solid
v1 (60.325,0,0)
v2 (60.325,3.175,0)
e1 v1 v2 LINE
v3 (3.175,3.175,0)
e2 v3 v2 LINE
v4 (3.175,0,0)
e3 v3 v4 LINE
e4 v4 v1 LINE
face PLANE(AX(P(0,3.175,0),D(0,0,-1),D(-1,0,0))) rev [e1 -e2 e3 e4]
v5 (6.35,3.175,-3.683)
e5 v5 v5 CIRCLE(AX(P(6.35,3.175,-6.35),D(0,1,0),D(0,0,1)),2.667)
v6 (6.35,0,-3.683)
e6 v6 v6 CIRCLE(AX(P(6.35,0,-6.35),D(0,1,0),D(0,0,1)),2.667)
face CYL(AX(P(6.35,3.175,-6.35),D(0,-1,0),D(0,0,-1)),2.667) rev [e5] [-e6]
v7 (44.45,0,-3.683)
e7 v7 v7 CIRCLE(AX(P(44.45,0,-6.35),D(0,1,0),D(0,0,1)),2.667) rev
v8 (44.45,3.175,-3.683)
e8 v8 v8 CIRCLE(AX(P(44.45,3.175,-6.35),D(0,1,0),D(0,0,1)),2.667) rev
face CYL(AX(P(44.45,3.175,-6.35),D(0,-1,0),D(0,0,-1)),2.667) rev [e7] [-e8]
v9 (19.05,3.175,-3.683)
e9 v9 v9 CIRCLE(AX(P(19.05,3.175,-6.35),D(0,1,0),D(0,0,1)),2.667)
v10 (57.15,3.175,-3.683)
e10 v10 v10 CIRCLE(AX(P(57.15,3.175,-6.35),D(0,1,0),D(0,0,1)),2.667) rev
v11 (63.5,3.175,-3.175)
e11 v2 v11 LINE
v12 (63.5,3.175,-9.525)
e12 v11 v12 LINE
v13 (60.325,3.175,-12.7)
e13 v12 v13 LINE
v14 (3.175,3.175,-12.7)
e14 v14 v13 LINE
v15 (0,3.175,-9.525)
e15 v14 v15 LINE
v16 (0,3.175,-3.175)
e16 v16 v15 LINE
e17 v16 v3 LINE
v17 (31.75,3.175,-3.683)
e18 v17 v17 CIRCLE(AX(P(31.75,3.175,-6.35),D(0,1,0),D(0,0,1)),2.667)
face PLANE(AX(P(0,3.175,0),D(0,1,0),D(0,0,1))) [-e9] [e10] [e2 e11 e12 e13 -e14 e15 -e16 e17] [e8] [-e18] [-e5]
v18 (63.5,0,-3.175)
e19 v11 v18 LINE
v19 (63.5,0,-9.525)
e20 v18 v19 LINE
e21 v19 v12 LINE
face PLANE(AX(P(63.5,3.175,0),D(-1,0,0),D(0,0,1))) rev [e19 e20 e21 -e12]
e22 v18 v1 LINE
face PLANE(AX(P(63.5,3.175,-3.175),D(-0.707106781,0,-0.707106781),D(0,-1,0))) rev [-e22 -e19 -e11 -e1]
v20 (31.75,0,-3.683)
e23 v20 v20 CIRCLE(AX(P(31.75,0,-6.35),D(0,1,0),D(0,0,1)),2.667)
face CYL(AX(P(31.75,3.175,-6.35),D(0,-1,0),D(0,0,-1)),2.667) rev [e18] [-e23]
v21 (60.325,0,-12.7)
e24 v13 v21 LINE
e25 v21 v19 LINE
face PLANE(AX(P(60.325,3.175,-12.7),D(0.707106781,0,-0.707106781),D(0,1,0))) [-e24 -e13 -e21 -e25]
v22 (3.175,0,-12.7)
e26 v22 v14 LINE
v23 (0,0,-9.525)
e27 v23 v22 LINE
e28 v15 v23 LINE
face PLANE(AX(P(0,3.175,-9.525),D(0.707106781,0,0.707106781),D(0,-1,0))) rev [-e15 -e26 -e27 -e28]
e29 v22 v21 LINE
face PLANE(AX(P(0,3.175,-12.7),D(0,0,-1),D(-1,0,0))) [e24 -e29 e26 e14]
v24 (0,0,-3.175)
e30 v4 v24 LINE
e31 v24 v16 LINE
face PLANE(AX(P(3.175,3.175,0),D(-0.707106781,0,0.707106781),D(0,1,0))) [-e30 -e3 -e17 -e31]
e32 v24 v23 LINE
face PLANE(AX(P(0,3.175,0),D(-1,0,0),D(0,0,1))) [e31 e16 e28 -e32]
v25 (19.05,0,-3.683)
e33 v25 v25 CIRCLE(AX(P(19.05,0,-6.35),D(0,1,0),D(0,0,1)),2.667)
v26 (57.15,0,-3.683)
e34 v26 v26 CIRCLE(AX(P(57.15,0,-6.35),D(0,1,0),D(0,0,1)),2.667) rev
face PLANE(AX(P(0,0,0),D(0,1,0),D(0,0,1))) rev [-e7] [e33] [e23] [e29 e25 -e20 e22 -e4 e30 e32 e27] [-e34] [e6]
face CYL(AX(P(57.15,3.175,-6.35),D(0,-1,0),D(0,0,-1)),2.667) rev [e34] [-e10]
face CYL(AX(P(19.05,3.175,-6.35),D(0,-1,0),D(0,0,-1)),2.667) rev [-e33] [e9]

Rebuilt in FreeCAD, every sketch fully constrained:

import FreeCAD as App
import Part
import Sketcher
Q = App.Units.Quantity


def edges_at(feature, points):
    """Names of the edges that pass closest to the given points."""
    edges = feature.Shape.Edges
    near = lambda p: min(range(len(edges)), key=lambda i: edges[i].distToShape(Part.Vertex(*p))[0])
    return sorted({f"Edge{near(p) + 1}" for p in points})

doc = App.newDocument("Part")
params = doc.addObject("Spreadsheet::Sheet", "Params")
for row, (alias, value) in enumerate([
    ("sketch1_diameter", "0.21 in"),
    ("sketch1_width", "2.5 in"),
    ("sketch1_height", "0.5 in"),
    ("pad1_length", "0.125 in"),
    ("chamfer_size", "0.125 in"),
], start=1):
    params.set(f"A{row}", alias)
    params.set(f"B{row}", "=" + value)
    params.setAlias(f"B{row}", alias)

body = doc.addObject("PartDesign::Body", "Body")

sketch1 = body.newObject("Sketcher::SketchObject", "Sketch")
sketch1.AttachmentSupport = (doc.getObject("XZ_Plane"), [""])
sketch1.MapMode = "FlatFace"
sketch1.addGeometry([
    Part.LineSegment(App.Vector(0, -12.7, 0), App.Vector(0, 0, 0)),
    Part.LineSegment(App.Vector(0, 0, 0), App.Vector(63.5, 0, 0)),
    Part.LineSegment(App.Vector(63.5, 0, 0), App.Vector(63.5, -12.7, 0)),
    Part.LineSegment(App.Vector(63.5, -12.7, 0), App.Vector(0, -12.7, 0)),
    Part.Circle(App.Vector(6.3, -6.3, 0), App.Vector(0, 0, 1), 2.7),
    Part.Circle(App.Vector(19.1, -6.3, 0), App.Vector(0, 0, 1), 2.7),
    Part.Circle(App.Vector(31.8, -6.3, 0), App.Vector(0, 0, 1), 2.7),
    Part.Circle(App.Vector(44.5, -6.3, 0), App.Vector(0, 0, 1), 2.7),
    Part.Circle(App.Vector(57.1, -6.3, 0), App.Vector(0, 0, 1), 2.7),
], False)
sketch1.addConstraint([
    Sketcher.Constraint("Coincident", 0, 2, 1, 1),
    Sketcher.Constraint("Coincident", 1, 2, 2, 1),
    Sketcher.Constraint("Coincident", 2, 2, 3, 1),
    Sketcher.Constraint("Coincident", 3, 2, 0, 1),
    Sketcher.Constraint("Vertical", 0),
    Sketcher.Constraint("Horizontal", 1),
    Sketcher.Constraint("Vertical", 2),
    Sketcher.Constraint("Horizontal", 3),
    Sketcher.Constraint("Coincident", 0, 2, -1, 1),
    Sketcher.Constraint("Equal", 4, 5),
    Sketcher.Constraint("Equal", 5, 6),
    Sketcher.Constraint("Equal", 6, 7),
    Sketcher.Constraint("Equal", 7, 8),
    Sketcher.Constraint("Horizontal", 4, 3, 5, 3),
    Sketcher.Constraint("Horizontal", 5, 3, 6, 3),
    Sketcher.Constraint("Horizontal", 6, 3, 7, 3),
    Sketcher.Constraint("Horizontal", 7, 3, 8, 3),
    Sketcher.Constraint("Diameter", 4, Q("0.21 in")),
    Sketcher.Constraint("DistanceX", 1, 1, 1, 2, Q("2.5 in")),
    Sketcher.Constraint("DistanceY", 0, 1, 0, 2, Q("0.5 in")),
    Sketcher.Constraint("DistanceX", 4, 3, 6, 3, Q("1 in")),
    Sketcher.Constraint("DistanceX", 5, 3, 7, 3, Q("1 in")),
    Sketcher.Constraint("DistanceX", 6, 3, 8, 3, Q("1 in")),
    Sketcher.Constraint("DistanceX", 4, 3, 5, 3, Q("0.5 in")),
    Sketcher.Constraint("DistanceX", -1, 1, 4, 3, Q("0.25 in")),
    Sketcher.Constraint("DistanceY", 4, 3, -1, 1, Q("0.25 in")),
])
sketch1.setExpression("Constraints[17]", "Params.sketch1_diameter")
sketch1.setExpression("Constraints[18]", "Params.sketch1_width")
sketch1.setExpression("Constraints[19]", "Params.sketch1_height")
pad1 = body.newObject("PartDesign::Pad", "Pad")
pad1.Profile = sketch1
pad1.setExpression("Length", "Params.pad1_length")
pad1.Reversed = True
doc.recompute()

chamfer = body.newObject("PartDesign::Chamfer", "Chamfer")
chamfer.Base = (pad1, edges_at(pad1, [
    (0, 1.587, 0),
    (0, 1.587, -12.7),
    (63.5, 1.587, -12.7),
    (63.5, 1.587, 0),
]))
chamfer.setExpression("Size", "Params.chamfer_size")

doc.recompute()
